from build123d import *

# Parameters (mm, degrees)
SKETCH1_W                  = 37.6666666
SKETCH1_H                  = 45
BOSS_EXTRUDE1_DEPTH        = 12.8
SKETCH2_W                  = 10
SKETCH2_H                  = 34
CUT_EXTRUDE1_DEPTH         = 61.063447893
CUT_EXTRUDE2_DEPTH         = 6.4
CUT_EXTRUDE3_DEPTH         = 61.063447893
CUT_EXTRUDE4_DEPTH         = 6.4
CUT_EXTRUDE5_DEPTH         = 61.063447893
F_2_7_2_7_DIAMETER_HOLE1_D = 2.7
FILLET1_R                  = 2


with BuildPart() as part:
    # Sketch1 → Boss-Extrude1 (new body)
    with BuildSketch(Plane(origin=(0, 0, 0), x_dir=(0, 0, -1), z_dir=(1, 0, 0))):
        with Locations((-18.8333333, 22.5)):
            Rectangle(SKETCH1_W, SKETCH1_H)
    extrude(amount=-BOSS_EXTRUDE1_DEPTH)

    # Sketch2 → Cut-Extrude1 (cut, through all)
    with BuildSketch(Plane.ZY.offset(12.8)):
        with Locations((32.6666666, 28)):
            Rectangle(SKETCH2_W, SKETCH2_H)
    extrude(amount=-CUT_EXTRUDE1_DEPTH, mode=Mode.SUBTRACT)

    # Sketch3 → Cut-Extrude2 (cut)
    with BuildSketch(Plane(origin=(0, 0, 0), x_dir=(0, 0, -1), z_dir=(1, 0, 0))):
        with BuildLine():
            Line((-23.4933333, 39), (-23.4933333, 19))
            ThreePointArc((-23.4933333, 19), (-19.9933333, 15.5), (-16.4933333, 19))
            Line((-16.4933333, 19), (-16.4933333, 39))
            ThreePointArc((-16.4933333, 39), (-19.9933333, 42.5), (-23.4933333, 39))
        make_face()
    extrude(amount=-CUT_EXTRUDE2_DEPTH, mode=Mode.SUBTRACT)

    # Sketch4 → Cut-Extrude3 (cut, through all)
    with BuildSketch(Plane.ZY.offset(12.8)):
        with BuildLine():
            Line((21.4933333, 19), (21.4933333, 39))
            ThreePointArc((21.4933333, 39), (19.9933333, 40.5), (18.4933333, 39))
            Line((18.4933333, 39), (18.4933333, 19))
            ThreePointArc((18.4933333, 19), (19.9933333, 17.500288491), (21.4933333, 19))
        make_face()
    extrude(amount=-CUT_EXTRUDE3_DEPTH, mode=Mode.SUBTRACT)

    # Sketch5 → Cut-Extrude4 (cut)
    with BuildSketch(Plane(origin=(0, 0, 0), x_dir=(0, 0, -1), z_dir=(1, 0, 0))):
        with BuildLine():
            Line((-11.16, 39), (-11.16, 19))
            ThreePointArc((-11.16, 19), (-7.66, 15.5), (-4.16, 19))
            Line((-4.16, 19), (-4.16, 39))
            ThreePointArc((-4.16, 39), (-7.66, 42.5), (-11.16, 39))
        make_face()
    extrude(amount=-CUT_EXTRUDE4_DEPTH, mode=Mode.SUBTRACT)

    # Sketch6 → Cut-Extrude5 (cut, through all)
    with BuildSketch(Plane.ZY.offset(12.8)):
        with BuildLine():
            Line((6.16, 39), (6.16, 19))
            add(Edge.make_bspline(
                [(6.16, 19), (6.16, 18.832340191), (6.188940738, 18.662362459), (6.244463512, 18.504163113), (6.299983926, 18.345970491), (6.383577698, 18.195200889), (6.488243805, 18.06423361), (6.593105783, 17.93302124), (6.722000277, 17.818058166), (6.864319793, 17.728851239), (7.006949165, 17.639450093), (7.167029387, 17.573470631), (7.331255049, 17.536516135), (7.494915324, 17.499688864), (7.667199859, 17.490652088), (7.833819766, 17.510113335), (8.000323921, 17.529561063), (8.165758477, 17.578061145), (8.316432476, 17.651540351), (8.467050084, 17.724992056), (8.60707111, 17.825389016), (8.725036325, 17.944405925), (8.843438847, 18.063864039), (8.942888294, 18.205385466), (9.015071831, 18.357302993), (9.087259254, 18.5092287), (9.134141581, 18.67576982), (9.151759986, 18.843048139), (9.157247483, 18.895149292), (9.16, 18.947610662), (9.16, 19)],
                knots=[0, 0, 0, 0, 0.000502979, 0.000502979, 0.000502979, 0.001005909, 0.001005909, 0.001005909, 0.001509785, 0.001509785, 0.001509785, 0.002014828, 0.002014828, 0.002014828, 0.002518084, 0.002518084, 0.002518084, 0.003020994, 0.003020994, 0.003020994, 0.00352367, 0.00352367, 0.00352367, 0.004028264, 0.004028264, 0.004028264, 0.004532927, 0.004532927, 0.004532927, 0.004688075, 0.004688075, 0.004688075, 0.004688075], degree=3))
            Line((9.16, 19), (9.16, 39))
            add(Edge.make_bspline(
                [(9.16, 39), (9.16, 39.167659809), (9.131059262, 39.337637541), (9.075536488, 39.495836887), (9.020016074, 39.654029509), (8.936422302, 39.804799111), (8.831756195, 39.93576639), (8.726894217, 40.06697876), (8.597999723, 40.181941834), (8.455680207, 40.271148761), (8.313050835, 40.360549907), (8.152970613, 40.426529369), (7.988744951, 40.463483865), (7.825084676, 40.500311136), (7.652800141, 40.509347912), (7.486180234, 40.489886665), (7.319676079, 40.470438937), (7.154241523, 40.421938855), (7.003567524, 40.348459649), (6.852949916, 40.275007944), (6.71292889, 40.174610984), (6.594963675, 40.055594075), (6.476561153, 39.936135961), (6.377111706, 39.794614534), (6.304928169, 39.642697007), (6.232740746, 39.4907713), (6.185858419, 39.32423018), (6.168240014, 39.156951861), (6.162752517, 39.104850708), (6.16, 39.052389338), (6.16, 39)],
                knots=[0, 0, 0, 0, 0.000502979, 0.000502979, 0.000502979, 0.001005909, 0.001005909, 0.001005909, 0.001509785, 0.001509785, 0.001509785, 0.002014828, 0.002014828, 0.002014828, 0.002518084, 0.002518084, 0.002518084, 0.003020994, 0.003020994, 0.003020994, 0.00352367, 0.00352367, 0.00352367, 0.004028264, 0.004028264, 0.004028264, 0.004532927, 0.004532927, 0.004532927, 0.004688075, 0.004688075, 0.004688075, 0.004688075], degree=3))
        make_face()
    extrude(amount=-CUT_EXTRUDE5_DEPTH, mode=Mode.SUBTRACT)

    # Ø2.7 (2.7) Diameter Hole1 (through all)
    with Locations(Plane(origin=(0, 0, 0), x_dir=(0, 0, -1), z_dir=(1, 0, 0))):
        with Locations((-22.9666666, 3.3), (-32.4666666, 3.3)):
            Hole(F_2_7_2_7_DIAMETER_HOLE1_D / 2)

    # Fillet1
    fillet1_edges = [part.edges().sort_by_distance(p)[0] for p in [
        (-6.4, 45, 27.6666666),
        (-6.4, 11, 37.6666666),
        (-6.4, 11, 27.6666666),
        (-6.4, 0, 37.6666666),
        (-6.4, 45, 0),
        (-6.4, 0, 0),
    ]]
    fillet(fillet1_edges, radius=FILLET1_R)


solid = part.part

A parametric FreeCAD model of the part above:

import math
import FreeCAD as App
import Part
import Sketcher
from FreeCAD import Vector


def edges_at(feature, points):
    """Names of the edges that pass closest to the given points."""
    edges = feature.Shape.Edges
    near = lambda p: min(range(len(edges)), key=lambda i: edges[i].distToShape(Part.Vertex(*p))[0])
    return sorted({f"Edge{near(p) + 1}" for p in points})

doc = App.newDocument("Part")
params = doc.addObject("Spreadsheet::Sheet", "Params")
for row, (alias, value) in enumerate([
    ("sketch1_width", "45 mm"),
    ("pad1_length", "12.8 mm"),
    ("sketch2_width", "34 mm"),
    ("sketch2_height", "10 mm"),
    ("sketch3_radius", "3.5 mm"),
    ("sketch3_width", "20 mm"),
    ("pocket2_length", "6.4 mm"),
    ("sketch4_radius", "1.5 mm"),
    ("sketch4_width", "20 mm"),
    ("sketch5_radius", "3.5 mm"),
    ("sketch5_width", "20 mm"),
    ("pocket4_length", "6.4 mm"),
    ("sketch7_diameter", "2.7 mm"),
    ("hole_diameter", "2.7 mm"),
    ("fillet_radius", "2 mm"),
], start=1):
    params.set(f"A{row}", alias)
    params.set(f"B{row}", "=" + value)
    params.setAlias(f"B{row}", alias)

body = doc.addObject("PartDesign::Body", "Body")

# Sketch on YZ plane
sketch1 = body.newObject("Sketcher::SketchObject", "Sketch")
sketch1.AttachmentSupport = (doc.getObject("YZ_Plane"), [""])
sketch1.MapMode = "FlatFace"
sketch1.addGeometry([
    Part.LineSegment(Vector(45, 37.666667, 0), Vector(0, 37.666667, 0)),
    Part.LineSegment(Vector(0, 37.666667, 0), Vector(0, 0, 0)),
    Part.LineSegment(Vector(0, 0, 0), Vector(45, 0, 0)),
    Part.LineSegment(Vector(45, 0, 0), Vector(45, 37.666667, 0)),
], False)
sketch1.addConstraint([
    Sketcher.Constraint("Coincident", 0, 2, 1, 1),
    Sketcher.Constraint("Coincident", 1, 2, 2, 1),
    Sketcher.Constraint("Coincident", 2, 2, 3, 1),
    Sketcher.Constraint("Coincident", 3, 2, 0, 1),
    Sketcher.Constraint("Horizontal", 0),
    Sketcher.Constraint("Vertical", 1),
    Sketcher.Constraint("Horizontal", 2),
    Sketcher.Constraint("Vertical", 3),
    Sketcher.Constraint("Coincident", 1, 2, -1, 1),
    Sketcher.Constraint("DistanceX", 0, 2, 0, 1, 45.0),
    Sketcher.Constraint("DistanceY", 1, 2, 1, 1, 37.666667),
])
sketch1.setExpression("Constraints[9]", "Params.sketch1_width")
pad1 = body.newObject("PartDesign::Pad", "Pad")
pad1.Profile = sketch1
pad1.setExpression("Length", "Params.pad1_length")
pad1.Reversed = True

# Sketch on YZ plane
sketch2 = body.newObject("Sketcher::SketchObject", "Sketch001")
sketch2.AttachmentSupport = (doc.getObject("YZ_Plane"), [""])
sketch2.MapMode = "FlatFace"
sketch2.AttachmentOffset = App.Placement(Vector(0, 0, -12.8), App.Rotation())
sketch2.addGeometry([
    Part.LineSegment(Vector(45, 27.666667, 0), Vector(11, 27.666667, 0)),
    Part.LineSegment(Vector(11, 27.666667, 0), Vector(11, 37.666667, 0)),
    Part.LineSegment(Vector(11, 37.666667, 0), Vector(45, 37.666667, 0)),
    Part.LineSegment(Vector(45, 37.666667, 0), Vector(45, 27.666667, 0)),
], False)
sketch2.addConstraint([
    Sketcher.Constraint("Coincident", 0, 2, 1, 1),
    Sketcher.Constraint("Coincident", 1, 2, 2, 1),
    Sketcher.Constraint("Coincident", 2, 2, 3, 1),
    Sketcher.Constraint("Coincident", 3, 2, 0, 1),
    Sketcher.Constraint("Horizontal", 0),
    Sketcher.Constraint("Vertical", 1),
    Sketcher.Constraint("Horizontal", 2),
    Sketcher.Constraint("Vertical", 3),
    Sketcher.Constraint("DistanceX", 0, 2, 0, 1, 34.0),
    Sketcher.Constraint("DistanceY", 1, 1, 1, 2, 10.0),
    Sketcher.Constraint("DistanceX", -1, 1, 0, 2, 11.0),
    Sketcher.Constraint("DistanceY", -1, 1, 0, 2, 27.666667),
])
sketch2.setExpression("Constraints[8]", "Params.sketch2_width")
sketch2.setExpression("Constraints[9]", "Params.sketch2_height")
pocket1 = body.newObject("PartDesign::Pocket", "Pocket")
pocket1.Profile = sketch2
pocket1.Type = "ThroughAll"
pocket1.Reversed = True

# Sketch on YZ plane
sketch3 = body.newObject("Sketcher::SketchObject", "Sketch002")
sketch3.AttachmentSupport = (doc.getObject("YZ_Plane"), [""])
sketch3.MapMode = "FlatFace"
sketch3.addGeometry([
    Part.LineSegment(Vector(39, 23.493333, 0), Vector(19, 23.493333, 0)),
    Part.ArcOfCircle(Part.Circle(Vector(19, 19.993333, 0), Vector(0, 0, 1), 3.5), math.radians(90), math.radians(270)),
    Part.LineSegment(Vector(19, 16.493333, 0), Vector(39, 16.493333, 0)),
    Part.ArcOfCircle(Part.Circle(Vector(39, 19.993333, 0), Vector(0, 0, 1), 3.5), math.radians(-90), math.radians(90)),
], False)
sketch3.addConstraint([
    Sketcher.Constraint("Tangent", 0, 2, 1, 1),
    Sketcher.Constraint("Tangent", 1, 2, 2, 1),
    Sketcher.Constraint("Tangent", 2, 2, 3, 1),
    Sketcher.Constraint("Tangent", 3, 2, 0, 1),
    Sketcher.Constraint("Horizontal", 0),
    Sketcher.Constraint("Horizontal", 2),
    Sketcher.Constraint("Radius", 1, 3.5),
    Sketcher.Constraint("DistanceX", 0, 2, 0, 1, 20.0),
    Sketcher.Constraint("DistanceX", -1, 1, 1, 3, 19.0),
    Sketcher.Constraint("DistanceY", -1, 1, 1, 3, 19.993333),
])
sketch3.setExpression("Constraints[6]", "Params.sketch3_radius")
sketch3.setExpression("Constraints[7]", "Params.sketch3_width")
pocket2 = body.newObject("PartDesign::Pocket", "Pocket001")
pocket2.Profile = sketch3
pocket2.setExpression("Length", "Params.pocket2_length")

# Sketch on YZ plane
sketch4 = body.newObject("Sketcher::SketchObject", "Sketch003")
sketch4.AttachmentSupport = (doc.getObject("YZ_Plane"), [""])
sketch4.MapMode = "FlatFace"
sketch4.AttachmentOffset = App.Placement(Vector(0, 0, -12.8), App.Rotation())
sketch4.addGeometry([
    Part.LineSegment(Vector(19, 21.493333, 0), Vector(39, 21.493333, 0)),
    Part.ArcOfCircle(Part.Circle(Vector(39, 19.993333, 0), Vector(0, 0, 1), 1.5), math.radians(-90), math.radians(90)),
    Part.LineSegment(Vector(39, 18.493333, 0), Vector(19, 18.493333, 0)),
    Part.ArcOfCircle(Part.Circle(Vector(19.000289, 19.993333, 0), Vector(0, 0, 1), 1.5), math.radians(90.011021), math.radians(269.988979)),
], False)
sketch4.addConstraint([
    Sketcher.Constraint("Tangent", 0, 2, 1, 2),
    Sketcher.Constraint("Tangent", 1, 1, 2, 1),
    Sketcher.Constraint("Coincident", 2, 2, 3, 2),
    Sketcher.Constraint("Coincident", 3, 1, 0, 1),
    Sketcher.Constraint("Horizontal", 0),
    Sketcher.Constraint("Horizontal", 2),
    Sketcher.Constraint("Vertical", 2, 2, 3, 1),
    Sketcher.Constraint("Radius", 1, 1.5),
    Sketcher.Constraint("DistanceX", 0, 1, 0, 2, 20.0),
    Sketcher.Constraint("DistanceX", -1, 1, 1, 3, 39.0),
    Sketcher.Constraint("DistanceX", -1, 1, 3, 3, 19.000289),
    Sketcher.Constraint("DistanceY", -1, 1, 1, 3, 19.993333),
])
sketch4.setExpression("Constraints[7]", "Params.sketch4_radius")
sketch4.setExpression("Constraints[8]", "Params.sketch4_width")
pocket3 = body.newObject("PartDesign::Pocket", "Pocket002")
pocket3.Profile = sketch4
pocket3.Type = "ThroughAll"
pocket3.Reversed = True

# Sketch on YZ plane
sketch5 = body.newObject("Sketcher::SketchObject", "Sketch004")
sketch5.AttachmentSupport = (doc.getObject("YZ_Plane"), [""])
sketch5.MapMode = "FlatFace"
sketch5.addGeometry([
    Part.LineSegment(Vector(39, 11.16, 0), Vector(19, 11.16, 0)),
    Part.ArcOfCircle(Part.Circle(Vector(19, 7.66, 0), Vector(0, 0, 1), 3.5), math.radians(90), math.radians(270)),
    Part.LineSegment(Vector(19, 4.16, 0), Vector(39, 4.16, 0)),
    Part.ArcOfCircle(Part.Circle(Vector(39, 7.66, 0), Vector(0, 0, 1), 3.5), math.radians(-90), math.radians(90)),
], False)
sketch5.addConstraint([
    Sketcher.Constraint("Tangent", 0, 2, 1, 1),
    Sketcher.Constraint("Tangent", 1, 2, 2, 1),
    Sketcher.Constraint("Tangent", 2, 2, 3, 1),
    Sketcher.Constraint("Tangent", 3, 2, 0, 1),
    Sketcher.Constraint("Horizontal", 0),
    Sketcher.Constraint("Horizontal", 2),
    Sketcher.Constraint("Radius", 1, 3.5),
    Sketcher.Constraint("DistanceX", 0, 2, 0, 1, 20.0),
    Sketcher.Constraint("DistanceX", -1, 1, 1, 3, 19.0),
    Sketcher.Constraint("DistanceY", -1, 1, 1, 3, 7.66),
])
sketch5.setExpression("Constraints[6]", "Params.sketch5_radius")
sketch5.setExpression("Constraints[7]", "Params.sketch5_width")
pocket4 = body.newObject("PartDesign::Pocket", "Pocket003")
pocket4.Profile = sketch5
pocket4.setExpression("Length", "Params.pocket4_length")

# Sketch on YZ plane
sketch6 = body.newObject("Sketcher::SketchObject", "Sketch005")
sketch6.AttachmentSupport = (doc.getObject("YZ_Plane"), [""])
sketch6.MapMode = "FlatFace"
sketch6.AttachmentOffset = App.Placement(Vector(0, 0, -12.8), App.Rotation())
sketch6.addGeometry([
    Part.LineSegment(Vector(39, 6.16, 0), Vector(19, 6.16, 0)),
    Part.BSplineCurve([Vector(19, 6.16, 0), Vector(18.83234, 6.16, 0), Vector(18.662362, 6.188941, 0), Vector(18.504163, 6.244464, 0), Vector(18.34597, 6.299984, 0), Vector(18.195201, 6.383578, 0), Vector(18.064234, 6.488244, 0), Vector(17.933021, 6.593106, 0), Vector(17.818058, 6.722, 0), Vector(17.728851, 6.86432, 0), Vector(17.63945, 7.006949, 0), Vector(17.573471, 7.167029, 0), Vector(17.536516, 7.331255, 0), Vector(17.499689, 7.494915, 0), Vector(17.490652, 7.6672, 0), Vector(17.510113, 7.83382, 0), Vector(17.529561, 8.000324, 0), Vector(17.578061, 8.165758, 0), Vector(17.65154, 8.316432, 0), Vector(17.724992, 8.46705, 0), Vector(17.825389, 8.607071, 0), Vector(17.944406, 8.725036, 0), Vector(18.063864, 8.843439, 0), Vector(18.205385, 8.942888, 0), Vector(18.357303, 9.015072, 0), Vector(18.509229, 9.087259, 0), Vector(18.67577, 9.134142, 0), Vector(18.843048, 9.15176, 0), Vector(18.895149, 9.157247, 0), Vector(18.947611, 9.16, 0), Vector(19, 9.16, 0)], [4, 3, 3, 3, 3, 3, 3, 3, 3, 3, 4], [0, 0.000502979, 0.001005909, 0.001509785, 0.002014828, 0.002518084, 0.003020994, 0.00352367, 0.004028264, 0.004532927, 0.004688075], False, 3, [1, 1, 1, 1, 1, 1, 1, 1, 1, 1, 1, 1, 1, 1, 1, 1, 1, 1, 1, 1, 1, 1, 1, 1, 1, 1, 1, 1, 1, 1, 1], False),
    Part.LineSegment(Vector(19, 9.16, 0), Vector(39, 9.16, 0)),
    Part.BSplineCurve([Vector(39, 9.16, 0), Vector(39.16766, 9.16, 0), Vector(39.337638, 9.131059, 0), Vector(39.495837, 9.075536, 0), Vector(39.65403, 9.020016, 0), Vector(39.804799, 8.936422, 0), Vector(39.935766, 8.831756, 0), Vector(40.066979, 8.726894, 0), Vector(40.181942, 8.598, 0), Vector(40.271149, 8.45568, 0), Vector(40.36055, 8.313051, 0), Vector(40.426529, 8.152971, 0), Vector(40.463484, 7.988745, 0), Vector(40.500311, 7.825085, 0), Vector(40.509348, 7.6528, 0), Vector(40.489887, 7.48618, 0), Vector(40.470439, 7.319676, 0), Vector(40.421939, 7.154242, 0), Vector(40.34846, 7.003568, 0), Vector(40.275008, 6.85295, 0), Vector(40.174611, 6.712929, 0), Vector(40.055594, 6.594964, 0), Vector(39.936136, 6.476561, 0), Vector(39.794615, 6.377112, 0), Vector(39.642697, 6.304928, 0), Vector(39.490771, 6.232741, 0), Vector(39.32423, 6.185858, 0), Vector(39.156952, 6.16824, 0), Vector(39.104851, 6.162753, 0), Vector(39.052389, 6.16, 0), Vector(39, 6.16, 0)], [4, 3, 3, 3, 3, 3, 3, 3, 3, 3, 4], [0, 0.000502979, 0.001005909, 0.001509785, 0.002014828, 0.002518084, 0.003020994, 0.00352367, 0.004028264, 0.004532927, 0.004688075], False, 3, [1, 1, 1, 1, 1, 1, 1, 1, 1, 1, 1, 1, 1, 1, 1, 1, 1, 1, 1, 1, 1, 1, 1, 1, 1, 1, 1, 1, 1, 1, 1], False),
], False)
sketch6.addConstraint([
    Sketcher.Constraint("Block", 1),
    Sketcher.Constraint("Block", 3),
    Sketcher.Constraint("Coincident", 0, 2, 1, 1),
    Sketcher.Constraint("Coincident", 1, 2, 2, 1),
    Sketcher.Constraint("Coincident", 2, 2, 3, 1),
    Sketcher.Constraint("Coincident", 3, 2, 0, 1),
])
pocket5 = body.newObject("PartDesign::Pocket", "Pocket004")
pocket5.Profile = sketch6
pocket5.Type = "ThroughAll"
pocket5.Reversed = True

# Sketch on YZ plane
sketch7 = body.newObject("Sketcher::SketchObject", "Sketch006")
sketch7.AttachmentSupport = (doc.getObject("YZ_Plane"), [""])
sketch7.MapMode = "FlatFace"
sketch7.addGeometry([
    Part.Circle(Vector(3.3, 22.966667, 0), Vector(0, 0, 1), 1.35),
    Part.Circle(Vector(3.3, 32.466667, 0), Vector(0, 0, 1), 1.35),
], False)
sketch7.addConstraint([
    Sketcher.Constraint("Equal", 0, 1),
    Sketcher.Constraint("Vertical", 0, 3, 1, 3),
    Sketcher.Constraint("Diameter", 0, 2.7),
    Sketcher.Constraint("DistanceX", -1, 1, 0, 3, 3.3),
    Sketcher.Constraint("DistanceY", 0, 3, 1, 3, 9.5),
    Sketcher.Constraint("DistanceY", -1, 1, 0, 3, 22.966667),
])
sketch7.setExpression("Constraints[2]", "Params.sketch7_diameter")
doc.recompute()
hole = body.newObject("PartDesign::Hole", "Hole")
hole.Profile = sketch7
hole.ThreadType = "None"
hole.setExpression("Diameter", "Params.hole_diameter")
hole.DepthType = "ThroughAll"
doc.recompute()

fillet = body.newObject("PartDesign::Fillet", "Fillet")
fillet.Base = (hole, edges_at(hole, [
    (-6.4, 45, 27.667),
    (-6.4, 11, 37.667),
    (-6.4, 11, 27.667),
    (-6.4, 0, 37.667),
    (-6.4, 45, 0),
    (-6.4, 0, 0),
]))
fillet.setExpression("Radius", "Params.fillet_radius")

doc.recompute()
